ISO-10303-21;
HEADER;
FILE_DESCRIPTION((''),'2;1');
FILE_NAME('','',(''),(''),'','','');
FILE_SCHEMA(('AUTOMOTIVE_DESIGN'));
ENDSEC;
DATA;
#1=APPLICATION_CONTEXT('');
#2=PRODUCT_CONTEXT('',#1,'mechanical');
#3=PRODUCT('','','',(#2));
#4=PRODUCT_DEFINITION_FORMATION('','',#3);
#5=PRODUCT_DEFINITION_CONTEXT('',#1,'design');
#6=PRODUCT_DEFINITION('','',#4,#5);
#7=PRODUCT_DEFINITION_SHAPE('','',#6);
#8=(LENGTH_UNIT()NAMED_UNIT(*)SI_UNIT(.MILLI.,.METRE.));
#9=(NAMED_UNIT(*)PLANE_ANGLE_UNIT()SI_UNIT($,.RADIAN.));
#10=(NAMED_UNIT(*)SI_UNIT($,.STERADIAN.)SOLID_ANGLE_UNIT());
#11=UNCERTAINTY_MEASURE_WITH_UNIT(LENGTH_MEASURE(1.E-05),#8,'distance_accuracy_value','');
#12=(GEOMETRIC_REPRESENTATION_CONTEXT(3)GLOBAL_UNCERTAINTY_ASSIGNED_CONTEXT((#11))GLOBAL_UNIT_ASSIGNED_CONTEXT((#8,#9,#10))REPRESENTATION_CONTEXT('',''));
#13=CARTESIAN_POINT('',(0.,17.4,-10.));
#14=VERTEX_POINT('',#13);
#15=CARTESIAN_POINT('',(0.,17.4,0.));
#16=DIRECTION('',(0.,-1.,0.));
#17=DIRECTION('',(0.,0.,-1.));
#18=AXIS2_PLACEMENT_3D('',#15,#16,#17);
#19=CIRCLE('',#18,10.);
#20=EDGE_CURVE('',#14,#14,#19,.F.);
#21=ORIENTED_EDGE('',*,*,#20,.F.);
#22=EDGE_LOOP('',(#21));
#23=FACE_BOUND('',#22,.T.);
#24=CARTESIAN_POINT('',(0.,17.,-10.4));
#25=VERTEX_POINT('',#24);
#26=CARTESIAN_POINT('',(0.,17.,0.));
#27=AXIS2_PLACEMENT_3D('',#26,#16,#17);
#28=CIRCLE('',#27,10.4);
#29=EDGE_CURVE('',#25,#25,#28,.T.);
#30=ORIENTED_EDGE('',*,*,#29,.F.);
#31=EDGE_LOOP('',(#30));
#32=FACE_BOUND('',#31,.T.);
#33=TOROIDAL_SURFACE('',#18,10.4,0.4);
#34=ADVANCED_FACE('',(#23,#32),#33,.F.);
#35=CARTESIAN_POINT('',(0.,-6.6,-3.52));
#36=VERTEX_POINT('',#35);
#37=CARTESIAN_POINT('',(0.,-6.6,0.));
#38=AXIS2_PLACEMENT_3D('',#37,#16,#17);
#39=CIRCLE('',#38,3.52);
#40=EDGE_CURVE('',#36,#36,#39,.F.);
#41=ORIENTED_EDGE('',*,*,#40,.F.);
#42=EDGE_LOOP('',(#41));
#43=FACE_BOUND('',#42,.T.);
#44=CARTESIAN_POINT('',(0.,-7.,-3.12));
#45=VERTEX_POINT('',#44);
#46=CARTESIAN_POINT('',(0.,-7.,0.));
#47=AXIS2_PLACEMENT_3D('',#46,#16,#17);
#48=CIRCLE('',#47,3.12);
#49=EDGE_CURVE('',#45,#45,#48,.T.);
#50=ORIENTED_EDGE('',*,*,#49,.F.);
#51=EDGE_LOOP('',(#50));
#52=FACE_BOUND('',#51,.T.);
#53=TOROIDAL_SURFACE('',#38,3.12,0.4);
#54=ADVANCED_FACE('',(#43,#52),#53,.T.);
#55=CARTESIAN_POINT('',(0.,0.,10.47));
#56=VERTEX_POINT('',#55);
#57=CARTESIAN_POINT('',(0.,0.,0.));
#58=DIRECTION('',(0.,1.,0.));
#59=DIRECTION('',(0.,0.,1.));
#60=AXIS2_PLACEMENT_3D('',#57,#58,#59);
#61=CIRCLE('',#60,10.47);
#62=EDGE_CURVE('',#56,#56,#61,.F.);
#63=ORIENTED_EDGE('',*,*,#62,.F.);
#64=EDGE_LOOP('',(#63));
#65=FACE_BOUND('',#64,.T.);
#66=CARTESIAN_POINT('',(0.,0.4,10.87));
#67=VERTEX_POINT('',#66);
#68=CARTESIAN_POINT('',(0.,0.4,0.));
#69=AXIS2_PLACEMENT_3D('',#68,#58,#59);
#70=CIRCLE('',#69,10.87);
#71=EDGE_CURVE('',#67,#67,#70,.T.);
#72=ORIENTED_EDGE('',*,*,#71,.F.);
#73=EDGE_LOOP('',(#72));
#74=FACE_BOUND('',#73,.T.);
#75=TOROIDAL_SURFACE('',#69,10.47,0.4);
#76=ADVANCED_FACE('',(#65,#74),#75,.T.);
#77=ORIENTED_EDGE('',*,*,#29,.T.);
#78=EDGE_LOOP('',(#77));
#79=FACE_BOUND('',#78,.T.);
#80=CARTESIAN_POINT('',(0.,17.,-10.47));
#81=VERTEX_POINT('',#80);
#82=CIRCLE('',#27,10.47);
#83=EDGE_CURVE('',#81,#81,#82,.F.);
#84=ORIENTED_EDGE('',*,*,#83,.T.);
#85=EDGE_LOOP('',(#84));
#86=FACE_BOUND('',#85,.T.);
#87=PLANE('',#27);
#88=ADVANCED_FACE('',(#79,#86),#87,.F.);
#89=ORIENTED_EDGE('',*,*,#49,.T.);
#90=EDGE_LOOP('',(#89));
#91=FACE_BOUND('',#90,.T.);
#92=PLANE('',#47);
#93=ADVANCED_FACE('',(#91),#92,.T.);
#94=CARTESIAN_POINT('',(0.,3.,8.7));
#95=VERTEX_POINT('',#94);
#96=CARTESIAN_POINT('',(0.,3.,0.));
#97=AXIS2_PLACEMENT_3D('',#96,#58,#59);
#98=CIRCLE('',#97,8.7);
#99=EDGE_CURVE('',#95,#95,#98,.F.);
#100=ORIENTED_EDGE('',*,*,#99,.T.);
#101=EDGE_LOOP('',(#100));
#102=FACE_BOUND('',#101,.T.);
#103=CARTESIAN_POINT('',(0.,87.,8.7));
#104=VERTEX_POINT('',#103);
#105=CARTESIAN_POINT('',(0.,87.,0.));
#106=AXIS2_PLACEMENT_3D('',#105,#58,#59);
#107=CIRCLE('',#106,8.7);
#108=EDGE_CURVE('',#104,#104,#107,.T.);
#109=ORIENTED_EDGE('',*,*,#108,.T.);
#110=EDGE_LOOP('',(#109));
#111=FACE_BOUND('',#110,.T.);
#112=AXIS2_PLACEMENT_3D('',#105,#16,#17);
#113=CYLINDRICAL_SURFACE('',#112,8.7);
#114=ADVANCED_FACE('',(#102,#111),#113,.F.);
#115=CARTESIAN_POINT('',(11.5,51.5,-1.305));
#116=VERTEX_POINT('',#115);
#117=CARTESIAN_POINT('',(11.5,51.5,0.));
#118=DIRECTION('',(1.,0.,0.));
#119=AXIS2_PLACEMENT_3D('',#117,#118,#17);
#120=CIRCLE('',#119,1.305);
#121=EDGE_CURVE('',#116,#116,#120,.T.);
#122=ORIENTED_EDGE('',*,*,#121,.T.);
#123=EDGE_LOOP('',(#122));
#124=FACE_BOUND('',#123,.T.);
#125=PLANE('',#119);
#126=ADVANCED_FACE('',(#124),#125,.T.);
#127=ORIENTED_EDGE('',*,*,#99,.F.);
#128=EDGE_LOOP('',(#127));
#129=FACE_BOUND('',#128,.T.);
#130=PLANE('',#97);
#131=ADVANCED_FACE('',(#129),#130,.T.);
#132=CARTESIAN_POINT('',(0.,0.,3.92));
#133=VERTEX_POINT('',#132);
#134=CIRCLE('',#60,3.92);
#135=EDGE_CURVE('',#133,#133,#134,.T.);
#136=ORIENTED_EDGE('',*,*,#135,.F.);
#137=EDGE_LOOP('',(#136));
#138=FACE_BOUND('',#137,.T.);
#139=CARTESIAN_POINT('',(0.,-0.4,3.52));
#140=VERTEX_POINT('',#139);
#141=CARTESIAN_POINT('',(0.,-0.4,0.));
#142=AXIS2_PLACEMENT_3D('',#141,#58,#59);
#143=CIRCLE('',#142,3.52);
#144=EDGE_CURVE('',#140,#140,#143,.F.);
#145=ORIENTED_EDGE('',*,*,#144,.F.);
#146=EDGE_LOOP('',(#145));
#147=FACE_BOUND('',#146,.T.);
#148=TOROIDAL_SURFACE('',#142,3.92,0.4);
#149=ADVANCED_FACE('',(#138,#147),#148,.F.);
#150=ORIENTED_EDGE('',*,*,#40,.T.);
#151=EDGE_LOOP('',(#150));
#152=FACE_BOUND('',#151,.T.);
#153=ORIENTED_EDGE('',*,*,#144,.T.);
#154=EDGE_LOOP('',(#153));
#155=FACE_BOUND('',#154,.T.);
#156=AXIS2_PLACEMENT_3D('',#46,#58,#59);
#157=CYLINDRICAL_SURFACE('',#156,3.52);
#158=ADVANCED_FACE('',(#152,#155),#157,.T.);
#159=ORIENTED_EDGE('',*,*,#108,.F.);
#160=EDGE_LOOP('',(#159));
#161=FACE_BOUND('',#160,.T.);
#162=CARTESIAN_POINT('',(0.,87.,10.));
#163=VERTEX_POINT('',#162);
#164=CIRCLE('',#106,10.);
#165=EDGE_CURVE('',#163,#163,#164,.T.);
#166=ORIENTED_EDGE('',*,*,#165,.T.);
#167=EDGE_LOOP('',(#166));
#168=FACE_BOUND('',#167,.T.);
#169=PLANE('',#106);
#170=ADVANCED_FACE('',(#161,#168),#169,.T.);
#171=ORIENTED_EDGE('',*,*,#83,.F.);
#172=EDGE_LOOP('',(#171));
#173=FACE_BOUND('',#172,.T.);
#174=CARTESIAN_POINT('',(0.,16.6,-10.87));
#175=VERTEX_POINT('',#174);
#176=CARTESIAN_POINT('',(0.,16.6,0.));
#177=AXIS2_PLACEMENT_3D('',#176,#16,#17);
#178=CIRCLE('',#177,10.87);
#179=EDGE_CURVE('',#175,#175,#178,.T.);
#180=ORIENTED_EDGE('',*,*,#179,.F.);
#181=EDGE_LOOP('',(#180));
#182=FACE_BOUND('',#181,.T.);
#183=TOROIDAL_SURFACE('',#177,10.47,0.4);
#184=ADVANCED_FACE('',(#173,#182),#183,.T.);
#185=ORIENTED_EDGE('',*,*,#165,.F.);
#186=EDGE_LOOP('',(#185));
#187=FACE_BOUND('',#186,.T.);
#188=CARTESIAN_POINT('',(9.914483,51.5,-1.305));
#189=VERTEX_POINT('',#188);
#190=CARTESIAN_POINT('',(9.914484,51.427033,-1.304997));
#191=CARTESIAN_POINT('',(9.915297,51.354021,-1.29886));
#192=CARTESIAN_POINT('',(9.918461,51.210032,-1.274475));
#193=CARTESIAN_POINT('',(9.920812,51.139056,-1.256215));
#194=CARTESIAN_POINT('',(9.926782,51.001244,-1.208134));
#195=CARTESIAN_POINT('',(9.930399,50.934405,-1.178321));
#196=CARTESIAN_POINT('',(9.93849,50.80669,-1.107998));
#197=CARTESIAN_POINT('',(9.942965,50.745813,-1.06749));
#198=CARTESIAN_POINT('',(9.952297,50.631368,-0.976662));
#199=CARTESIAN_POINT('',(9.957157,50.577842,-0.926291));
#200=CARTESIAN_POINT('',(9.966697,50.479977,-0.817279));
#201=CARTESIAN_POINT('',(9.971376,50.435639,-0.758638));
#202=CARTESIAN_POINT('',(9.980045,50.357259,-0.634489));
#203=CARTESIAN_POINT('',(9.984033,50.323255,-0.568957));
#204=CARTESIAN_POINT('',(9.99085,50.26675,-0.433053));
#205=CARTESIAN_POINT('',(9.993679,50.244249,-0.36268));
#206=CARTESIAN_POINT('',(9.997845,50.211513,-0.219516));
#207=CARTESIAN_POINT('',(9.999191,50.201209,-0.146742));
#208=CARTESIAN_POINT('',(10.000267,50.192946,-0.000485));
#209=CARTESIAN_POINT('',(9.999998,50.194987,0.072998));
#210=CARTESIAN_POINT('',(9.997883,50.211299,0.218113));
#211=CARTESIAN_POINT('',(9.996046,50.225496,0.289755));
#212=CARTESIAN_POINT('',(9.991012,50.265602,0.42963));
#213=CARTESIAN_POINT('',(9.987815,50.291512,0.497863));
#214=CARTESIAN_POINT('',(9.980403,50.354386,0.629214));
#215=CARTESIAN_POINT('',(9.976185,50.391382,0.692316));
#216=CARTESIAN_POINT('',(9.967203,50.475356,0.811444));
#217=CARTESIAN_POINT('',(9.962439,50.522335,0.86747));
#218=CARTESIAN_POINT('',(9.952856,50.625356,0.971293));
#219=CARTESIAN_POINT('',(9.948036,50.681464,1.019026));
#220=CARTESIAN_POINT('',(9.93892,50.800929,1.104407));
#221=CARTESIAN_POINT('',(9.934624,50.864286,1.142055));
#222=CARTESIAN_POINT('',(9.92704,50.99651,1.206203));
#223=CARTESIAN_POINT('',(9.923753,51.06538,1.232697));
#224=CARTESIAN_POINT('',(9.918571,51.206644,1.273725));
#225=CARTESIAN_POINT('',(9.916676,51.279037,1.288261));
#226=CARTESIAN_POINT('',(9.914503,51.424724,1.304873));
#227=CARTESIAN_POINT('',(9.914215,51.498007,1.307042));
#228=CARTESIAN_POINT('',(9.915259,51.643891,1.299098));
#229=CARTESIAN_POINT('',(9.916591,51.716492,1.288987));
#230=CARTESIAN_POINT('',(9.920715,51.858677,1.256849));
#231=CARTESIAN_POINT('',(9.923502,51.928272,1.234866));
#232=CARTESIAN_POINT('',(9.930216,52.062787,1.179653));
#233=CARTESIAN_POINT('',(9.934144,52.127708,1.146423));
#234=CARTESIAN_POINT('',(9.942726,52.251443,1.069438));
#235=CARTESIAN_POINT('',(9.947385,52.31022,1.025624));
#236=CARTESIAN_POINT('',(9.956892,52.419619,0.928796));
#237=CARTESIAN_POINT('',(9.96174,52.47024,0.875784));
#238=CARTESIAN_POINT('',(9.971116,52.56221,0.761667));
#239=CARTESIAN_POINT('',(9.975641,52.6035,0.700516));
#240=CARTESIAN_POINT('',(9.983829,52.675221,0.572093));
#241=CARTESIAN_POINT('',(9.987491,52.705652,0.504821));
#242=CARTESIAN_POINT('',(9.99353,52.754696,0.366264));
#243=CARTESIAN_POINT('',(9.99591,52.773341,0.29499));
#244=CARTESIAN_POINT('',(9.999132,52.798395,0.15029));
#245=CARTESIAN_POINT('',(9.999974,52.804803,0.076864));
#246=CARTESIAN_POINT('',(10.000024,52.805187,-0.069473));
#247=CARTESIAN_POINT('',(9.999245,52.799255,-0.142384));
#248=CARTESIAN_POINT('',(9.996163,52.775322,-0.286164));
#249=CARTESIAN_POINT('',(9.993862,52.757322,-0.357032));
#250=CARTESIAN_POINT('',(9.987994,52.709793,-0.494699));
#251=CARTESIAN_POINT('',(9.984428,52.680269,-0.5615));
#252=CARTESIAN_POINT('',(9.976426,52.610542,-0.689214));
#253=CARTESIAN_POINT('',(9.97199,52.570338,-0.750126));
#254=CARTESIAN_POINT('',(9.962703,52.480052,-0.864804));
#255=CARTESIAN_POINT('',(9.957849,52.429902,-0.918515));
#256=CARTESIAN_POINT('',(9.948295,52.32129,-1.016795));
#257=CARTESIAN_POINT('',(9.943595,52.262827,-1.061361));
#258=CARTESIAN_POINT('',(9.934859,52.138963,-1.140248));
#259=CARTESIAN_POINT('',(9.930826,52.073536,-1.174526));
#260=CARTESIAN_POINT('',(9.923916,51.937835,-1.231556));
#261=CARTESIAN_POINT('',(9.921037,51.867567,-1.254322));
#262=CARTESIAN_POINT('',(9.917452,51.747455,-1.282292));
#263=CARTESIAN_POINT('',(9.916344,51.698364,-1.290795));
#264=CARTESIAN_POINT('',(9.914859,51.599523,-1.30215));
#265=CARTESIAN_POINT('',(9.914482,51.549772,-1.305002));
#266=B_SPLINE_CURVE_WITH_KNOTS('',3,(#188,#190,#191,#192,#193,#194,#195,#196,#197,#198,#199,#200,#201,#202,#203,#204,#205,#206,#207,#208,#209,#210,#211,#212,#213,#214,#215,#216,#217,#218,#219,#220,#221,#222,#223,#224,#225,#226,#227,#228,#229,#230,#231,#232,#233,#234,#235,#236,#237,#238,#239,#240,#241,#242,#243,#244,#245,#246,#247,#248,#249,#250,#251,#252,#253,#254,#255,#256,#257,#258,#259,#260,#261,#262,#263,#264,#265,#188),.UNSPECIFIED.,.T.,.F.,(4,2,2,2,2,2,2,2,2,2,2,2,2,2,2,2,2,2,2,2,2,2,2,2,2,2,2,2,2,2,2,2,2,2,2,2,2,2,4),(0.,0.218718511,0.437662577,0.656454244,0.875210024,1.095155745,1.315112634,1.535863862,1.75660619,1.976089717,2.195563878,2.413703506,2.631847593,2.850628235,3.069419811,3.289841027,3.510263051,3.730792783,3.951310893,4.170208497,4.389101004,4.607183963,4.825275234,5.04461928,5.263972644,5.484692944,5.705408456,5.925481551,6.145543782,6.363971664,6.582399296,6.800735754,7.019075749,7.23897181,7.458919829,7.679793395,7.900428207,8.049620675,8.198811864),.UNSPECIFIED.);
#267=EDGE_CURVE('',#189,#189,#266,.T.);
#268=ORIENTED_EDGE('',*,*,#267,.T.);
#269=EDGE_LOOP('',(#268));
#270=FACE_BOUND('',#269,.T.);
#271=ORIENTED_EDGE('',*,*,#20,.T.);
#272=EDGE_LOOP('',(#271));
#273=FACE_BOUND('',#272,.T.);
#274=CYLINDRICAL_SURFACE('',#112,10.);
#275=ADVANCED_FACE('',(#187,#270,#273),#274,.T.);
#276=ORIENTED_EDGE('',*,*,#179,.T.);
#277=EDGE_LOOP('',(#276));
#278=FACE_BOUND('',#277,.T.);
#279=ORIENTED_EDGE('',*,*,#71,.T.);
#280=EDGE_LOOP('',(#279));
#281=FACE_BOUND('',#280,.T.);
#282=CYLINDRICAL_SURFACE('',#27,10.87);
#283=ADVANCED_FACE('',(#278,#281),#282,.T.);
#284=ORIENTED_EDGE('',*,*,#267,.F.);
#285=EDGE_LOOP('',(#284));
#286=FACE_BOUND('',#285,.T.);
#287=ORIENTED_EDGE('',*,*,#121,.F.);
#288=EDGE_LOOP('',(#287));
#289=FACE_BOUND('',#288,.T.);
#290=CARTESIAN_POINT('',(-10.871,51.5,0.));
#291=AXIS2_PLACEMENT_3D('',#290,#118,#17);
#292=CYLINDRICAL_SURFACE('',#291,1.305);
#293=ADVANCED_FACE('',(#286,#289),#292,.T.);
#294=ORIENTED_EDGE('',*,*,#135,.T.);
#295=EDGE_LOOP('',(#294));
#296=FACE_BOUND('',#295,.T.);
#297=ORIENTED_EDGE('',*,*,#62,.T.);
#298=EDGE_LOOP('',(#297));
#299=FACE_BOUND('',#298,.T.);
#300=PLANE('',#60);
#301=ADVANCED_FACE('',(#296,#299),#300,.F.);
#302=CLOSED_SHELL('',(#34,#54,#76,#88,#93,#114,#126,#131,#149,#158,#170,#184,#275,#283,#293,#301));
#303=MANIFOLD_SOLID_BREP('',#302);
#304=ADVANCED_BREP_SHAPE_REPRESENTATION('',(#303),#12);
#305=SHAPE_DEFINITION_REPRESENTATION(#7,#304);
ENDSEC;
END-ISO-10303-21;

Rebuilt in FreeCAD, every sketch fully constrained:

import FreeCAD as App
import Part
import Sketcher
Q = App.Units.Quantity


def edges_at(feature, points):
    """Names of the edges that pass closest to the given points."""
    edges = feature.Shape.Edges
    near = lambda p: min(range(len(edges)), key=lambda i: edges[i].distToShape(Part.Vertex(*p))[0])
    return sorted({f"Edge{near(p) + 1}" for p in points})

doc = App.newDocument("Part")
body = doc.addObject("PartDesign::Body", "Body")

sketch1 = body.newObject("Sketcher::SketchObject", "Sketch")
sketch1.AttachmentSupport = (doc.getObject("XZ_Plane"), [""])
sketch1.MapMode = "FlatFace"
sketch1.addGeometry(Part.Circle(App.Vector(0, 0, 0), App.Vector(0, 0, 1), 10), False)
sketch1.addGeometry(Part.Circle(App.Vector(0, 0, 0), App.Vector(0, 0, 1), 8.7), False)
sketch1.addConstraint(Sketcher.Constraint("Coincident", 0, 3, -1, 1))
sketch1.addConstraint(Sketcher.Constraint("Coincident", 1, 3, -1, 1))
sketch1.addConstraint(Sketcher.Constraint("Diameter", 0, Q("20 mm")))
sketch1.addConstraint(Sketcher.Constraint("Diameter", 1, Q("17.4 mm")))
pad1 = body.newObject("PartDesign::Pad", "Pad")
pad1.Profile = sketch1
pad1.Length = 87
pad1.Reversed = True

sketch2 = body.newObject("Sketcher::SketchObject", "Sketch001")
sketch2.AttachmentSupport = (doc.getObject("XZ_Plane"), [""])
sketch2.MapMode = "FlatFace"
sketch2.addGeometry(Part.Circle(App.Vector(0, 0, 0), App.Vector(0, 0, 1), 10.87), False)
sketch2.addConstraint(Sketcher.Constraint("Coincident", 0, 3, -1, 1))
sketch2.addConstraint(Sketcher.Constraint("Diameter", 0, Q("21.74 mm")))
pad2 = body.newObject("PartDesign::Pad", "Pad001")
pad2.Profile = sketch2
pad2.Length = 17
pad2.Reversed = True

sketch3 = body.newObject("Sketcher::SketchObject", "Sketch002")
sketch3.AttachmentSupport = (doc.getObject("XZ_Plane"), [""])
sketch3.MapMode = "FlatFace"
sketch3.addGeometry(Part.Circle(App.Vector(0, 0, 0), App.Vector(0, 0, 1), 3.52), False)
sketch3.addConstraint(Sketcher.Constraint("Coincident", 0, 3, -1, 1))
sketch3.addConstraint(Sketcher.Constraint("Diameter", 0, Q("7.04 mm")))
pad3 = body.newObject("PartDesign::Pad", "Pad002")
pad3.Profile = sketch3
pad3.Length = 7

sketch4 = body.newObject("Sketcher::SketchObject", "Sketch003")
sketch4.AttachmentSupport = (doc.getObject("XZ_Plane"), [""])
sketch4.MapMode = "FlatFace"
sketch4.AttachmentOffset = App.Placement(App.Vector(0, 0, -17), App.Rotation())
sketch4.addGeometry(Part.Circle(App.Vector(0, 0, 0), App.Vector(0, 0, 1), 8.7), False)
sketch4.addConstraint(Sketcher.Constraint("Coincident", 0, 3, -1, 1))
sketch4.addConstraint(Sketcher.Constraint("Diameter", 0, Q("17.4 mm")))
pocket1 = body.newObject("PartDesign::Pocket", "Pocket")
pocket1.Profile = sketch4
pocket1.Length = 14
pocket1.Reversed = True

sketch5 = body.newObject("Sketcher::SketchObject", "Sketch004")
sketch5.AttachmentSupport = (doc.getObject("YZ_Plane"), [""])
sketch5.MapMode = "FlatFace"
sketch5.AttachmentOffset = App.Placement(App.Vector(0, 0, 9.914483), App.Rotation())
sketch5.addGeometry(Part.Circle(App.Vector(51.5, 0, 0), App.Vector(0, 0, 1), 1.305), False)
sketch5.addConstraint(Sketcher.Constraint("PointOnObject", 0, 3, -1))
sketch5.addConstraint(Sketcher.Constraint("Diameter", 0, Q("2.61 mm")))
sketch5.addConstraint(Sketcher.Constraint("DistanceX", -1, 1, 0, 3, Q("51.5 mm")))
pad4 = body.newObject("PartDesign::Pad", "Pad003")
pad4.Profile = sketch5
pad4.Length = 1.585517
doc.recompute()

fillet = body.newObject("PartDesign::Fillet", "Fillet")
fillet.Base = (pad4, edges_at(pad4, [
    (-10, 17, 0),
    (-10.87, 17, 0),
    (-10.87, 0, 0),
    (-3.52, 0, 0),
    (-3.52, -7, 0),
]))
fillet.Radius = 0.4

doc.recompute()
